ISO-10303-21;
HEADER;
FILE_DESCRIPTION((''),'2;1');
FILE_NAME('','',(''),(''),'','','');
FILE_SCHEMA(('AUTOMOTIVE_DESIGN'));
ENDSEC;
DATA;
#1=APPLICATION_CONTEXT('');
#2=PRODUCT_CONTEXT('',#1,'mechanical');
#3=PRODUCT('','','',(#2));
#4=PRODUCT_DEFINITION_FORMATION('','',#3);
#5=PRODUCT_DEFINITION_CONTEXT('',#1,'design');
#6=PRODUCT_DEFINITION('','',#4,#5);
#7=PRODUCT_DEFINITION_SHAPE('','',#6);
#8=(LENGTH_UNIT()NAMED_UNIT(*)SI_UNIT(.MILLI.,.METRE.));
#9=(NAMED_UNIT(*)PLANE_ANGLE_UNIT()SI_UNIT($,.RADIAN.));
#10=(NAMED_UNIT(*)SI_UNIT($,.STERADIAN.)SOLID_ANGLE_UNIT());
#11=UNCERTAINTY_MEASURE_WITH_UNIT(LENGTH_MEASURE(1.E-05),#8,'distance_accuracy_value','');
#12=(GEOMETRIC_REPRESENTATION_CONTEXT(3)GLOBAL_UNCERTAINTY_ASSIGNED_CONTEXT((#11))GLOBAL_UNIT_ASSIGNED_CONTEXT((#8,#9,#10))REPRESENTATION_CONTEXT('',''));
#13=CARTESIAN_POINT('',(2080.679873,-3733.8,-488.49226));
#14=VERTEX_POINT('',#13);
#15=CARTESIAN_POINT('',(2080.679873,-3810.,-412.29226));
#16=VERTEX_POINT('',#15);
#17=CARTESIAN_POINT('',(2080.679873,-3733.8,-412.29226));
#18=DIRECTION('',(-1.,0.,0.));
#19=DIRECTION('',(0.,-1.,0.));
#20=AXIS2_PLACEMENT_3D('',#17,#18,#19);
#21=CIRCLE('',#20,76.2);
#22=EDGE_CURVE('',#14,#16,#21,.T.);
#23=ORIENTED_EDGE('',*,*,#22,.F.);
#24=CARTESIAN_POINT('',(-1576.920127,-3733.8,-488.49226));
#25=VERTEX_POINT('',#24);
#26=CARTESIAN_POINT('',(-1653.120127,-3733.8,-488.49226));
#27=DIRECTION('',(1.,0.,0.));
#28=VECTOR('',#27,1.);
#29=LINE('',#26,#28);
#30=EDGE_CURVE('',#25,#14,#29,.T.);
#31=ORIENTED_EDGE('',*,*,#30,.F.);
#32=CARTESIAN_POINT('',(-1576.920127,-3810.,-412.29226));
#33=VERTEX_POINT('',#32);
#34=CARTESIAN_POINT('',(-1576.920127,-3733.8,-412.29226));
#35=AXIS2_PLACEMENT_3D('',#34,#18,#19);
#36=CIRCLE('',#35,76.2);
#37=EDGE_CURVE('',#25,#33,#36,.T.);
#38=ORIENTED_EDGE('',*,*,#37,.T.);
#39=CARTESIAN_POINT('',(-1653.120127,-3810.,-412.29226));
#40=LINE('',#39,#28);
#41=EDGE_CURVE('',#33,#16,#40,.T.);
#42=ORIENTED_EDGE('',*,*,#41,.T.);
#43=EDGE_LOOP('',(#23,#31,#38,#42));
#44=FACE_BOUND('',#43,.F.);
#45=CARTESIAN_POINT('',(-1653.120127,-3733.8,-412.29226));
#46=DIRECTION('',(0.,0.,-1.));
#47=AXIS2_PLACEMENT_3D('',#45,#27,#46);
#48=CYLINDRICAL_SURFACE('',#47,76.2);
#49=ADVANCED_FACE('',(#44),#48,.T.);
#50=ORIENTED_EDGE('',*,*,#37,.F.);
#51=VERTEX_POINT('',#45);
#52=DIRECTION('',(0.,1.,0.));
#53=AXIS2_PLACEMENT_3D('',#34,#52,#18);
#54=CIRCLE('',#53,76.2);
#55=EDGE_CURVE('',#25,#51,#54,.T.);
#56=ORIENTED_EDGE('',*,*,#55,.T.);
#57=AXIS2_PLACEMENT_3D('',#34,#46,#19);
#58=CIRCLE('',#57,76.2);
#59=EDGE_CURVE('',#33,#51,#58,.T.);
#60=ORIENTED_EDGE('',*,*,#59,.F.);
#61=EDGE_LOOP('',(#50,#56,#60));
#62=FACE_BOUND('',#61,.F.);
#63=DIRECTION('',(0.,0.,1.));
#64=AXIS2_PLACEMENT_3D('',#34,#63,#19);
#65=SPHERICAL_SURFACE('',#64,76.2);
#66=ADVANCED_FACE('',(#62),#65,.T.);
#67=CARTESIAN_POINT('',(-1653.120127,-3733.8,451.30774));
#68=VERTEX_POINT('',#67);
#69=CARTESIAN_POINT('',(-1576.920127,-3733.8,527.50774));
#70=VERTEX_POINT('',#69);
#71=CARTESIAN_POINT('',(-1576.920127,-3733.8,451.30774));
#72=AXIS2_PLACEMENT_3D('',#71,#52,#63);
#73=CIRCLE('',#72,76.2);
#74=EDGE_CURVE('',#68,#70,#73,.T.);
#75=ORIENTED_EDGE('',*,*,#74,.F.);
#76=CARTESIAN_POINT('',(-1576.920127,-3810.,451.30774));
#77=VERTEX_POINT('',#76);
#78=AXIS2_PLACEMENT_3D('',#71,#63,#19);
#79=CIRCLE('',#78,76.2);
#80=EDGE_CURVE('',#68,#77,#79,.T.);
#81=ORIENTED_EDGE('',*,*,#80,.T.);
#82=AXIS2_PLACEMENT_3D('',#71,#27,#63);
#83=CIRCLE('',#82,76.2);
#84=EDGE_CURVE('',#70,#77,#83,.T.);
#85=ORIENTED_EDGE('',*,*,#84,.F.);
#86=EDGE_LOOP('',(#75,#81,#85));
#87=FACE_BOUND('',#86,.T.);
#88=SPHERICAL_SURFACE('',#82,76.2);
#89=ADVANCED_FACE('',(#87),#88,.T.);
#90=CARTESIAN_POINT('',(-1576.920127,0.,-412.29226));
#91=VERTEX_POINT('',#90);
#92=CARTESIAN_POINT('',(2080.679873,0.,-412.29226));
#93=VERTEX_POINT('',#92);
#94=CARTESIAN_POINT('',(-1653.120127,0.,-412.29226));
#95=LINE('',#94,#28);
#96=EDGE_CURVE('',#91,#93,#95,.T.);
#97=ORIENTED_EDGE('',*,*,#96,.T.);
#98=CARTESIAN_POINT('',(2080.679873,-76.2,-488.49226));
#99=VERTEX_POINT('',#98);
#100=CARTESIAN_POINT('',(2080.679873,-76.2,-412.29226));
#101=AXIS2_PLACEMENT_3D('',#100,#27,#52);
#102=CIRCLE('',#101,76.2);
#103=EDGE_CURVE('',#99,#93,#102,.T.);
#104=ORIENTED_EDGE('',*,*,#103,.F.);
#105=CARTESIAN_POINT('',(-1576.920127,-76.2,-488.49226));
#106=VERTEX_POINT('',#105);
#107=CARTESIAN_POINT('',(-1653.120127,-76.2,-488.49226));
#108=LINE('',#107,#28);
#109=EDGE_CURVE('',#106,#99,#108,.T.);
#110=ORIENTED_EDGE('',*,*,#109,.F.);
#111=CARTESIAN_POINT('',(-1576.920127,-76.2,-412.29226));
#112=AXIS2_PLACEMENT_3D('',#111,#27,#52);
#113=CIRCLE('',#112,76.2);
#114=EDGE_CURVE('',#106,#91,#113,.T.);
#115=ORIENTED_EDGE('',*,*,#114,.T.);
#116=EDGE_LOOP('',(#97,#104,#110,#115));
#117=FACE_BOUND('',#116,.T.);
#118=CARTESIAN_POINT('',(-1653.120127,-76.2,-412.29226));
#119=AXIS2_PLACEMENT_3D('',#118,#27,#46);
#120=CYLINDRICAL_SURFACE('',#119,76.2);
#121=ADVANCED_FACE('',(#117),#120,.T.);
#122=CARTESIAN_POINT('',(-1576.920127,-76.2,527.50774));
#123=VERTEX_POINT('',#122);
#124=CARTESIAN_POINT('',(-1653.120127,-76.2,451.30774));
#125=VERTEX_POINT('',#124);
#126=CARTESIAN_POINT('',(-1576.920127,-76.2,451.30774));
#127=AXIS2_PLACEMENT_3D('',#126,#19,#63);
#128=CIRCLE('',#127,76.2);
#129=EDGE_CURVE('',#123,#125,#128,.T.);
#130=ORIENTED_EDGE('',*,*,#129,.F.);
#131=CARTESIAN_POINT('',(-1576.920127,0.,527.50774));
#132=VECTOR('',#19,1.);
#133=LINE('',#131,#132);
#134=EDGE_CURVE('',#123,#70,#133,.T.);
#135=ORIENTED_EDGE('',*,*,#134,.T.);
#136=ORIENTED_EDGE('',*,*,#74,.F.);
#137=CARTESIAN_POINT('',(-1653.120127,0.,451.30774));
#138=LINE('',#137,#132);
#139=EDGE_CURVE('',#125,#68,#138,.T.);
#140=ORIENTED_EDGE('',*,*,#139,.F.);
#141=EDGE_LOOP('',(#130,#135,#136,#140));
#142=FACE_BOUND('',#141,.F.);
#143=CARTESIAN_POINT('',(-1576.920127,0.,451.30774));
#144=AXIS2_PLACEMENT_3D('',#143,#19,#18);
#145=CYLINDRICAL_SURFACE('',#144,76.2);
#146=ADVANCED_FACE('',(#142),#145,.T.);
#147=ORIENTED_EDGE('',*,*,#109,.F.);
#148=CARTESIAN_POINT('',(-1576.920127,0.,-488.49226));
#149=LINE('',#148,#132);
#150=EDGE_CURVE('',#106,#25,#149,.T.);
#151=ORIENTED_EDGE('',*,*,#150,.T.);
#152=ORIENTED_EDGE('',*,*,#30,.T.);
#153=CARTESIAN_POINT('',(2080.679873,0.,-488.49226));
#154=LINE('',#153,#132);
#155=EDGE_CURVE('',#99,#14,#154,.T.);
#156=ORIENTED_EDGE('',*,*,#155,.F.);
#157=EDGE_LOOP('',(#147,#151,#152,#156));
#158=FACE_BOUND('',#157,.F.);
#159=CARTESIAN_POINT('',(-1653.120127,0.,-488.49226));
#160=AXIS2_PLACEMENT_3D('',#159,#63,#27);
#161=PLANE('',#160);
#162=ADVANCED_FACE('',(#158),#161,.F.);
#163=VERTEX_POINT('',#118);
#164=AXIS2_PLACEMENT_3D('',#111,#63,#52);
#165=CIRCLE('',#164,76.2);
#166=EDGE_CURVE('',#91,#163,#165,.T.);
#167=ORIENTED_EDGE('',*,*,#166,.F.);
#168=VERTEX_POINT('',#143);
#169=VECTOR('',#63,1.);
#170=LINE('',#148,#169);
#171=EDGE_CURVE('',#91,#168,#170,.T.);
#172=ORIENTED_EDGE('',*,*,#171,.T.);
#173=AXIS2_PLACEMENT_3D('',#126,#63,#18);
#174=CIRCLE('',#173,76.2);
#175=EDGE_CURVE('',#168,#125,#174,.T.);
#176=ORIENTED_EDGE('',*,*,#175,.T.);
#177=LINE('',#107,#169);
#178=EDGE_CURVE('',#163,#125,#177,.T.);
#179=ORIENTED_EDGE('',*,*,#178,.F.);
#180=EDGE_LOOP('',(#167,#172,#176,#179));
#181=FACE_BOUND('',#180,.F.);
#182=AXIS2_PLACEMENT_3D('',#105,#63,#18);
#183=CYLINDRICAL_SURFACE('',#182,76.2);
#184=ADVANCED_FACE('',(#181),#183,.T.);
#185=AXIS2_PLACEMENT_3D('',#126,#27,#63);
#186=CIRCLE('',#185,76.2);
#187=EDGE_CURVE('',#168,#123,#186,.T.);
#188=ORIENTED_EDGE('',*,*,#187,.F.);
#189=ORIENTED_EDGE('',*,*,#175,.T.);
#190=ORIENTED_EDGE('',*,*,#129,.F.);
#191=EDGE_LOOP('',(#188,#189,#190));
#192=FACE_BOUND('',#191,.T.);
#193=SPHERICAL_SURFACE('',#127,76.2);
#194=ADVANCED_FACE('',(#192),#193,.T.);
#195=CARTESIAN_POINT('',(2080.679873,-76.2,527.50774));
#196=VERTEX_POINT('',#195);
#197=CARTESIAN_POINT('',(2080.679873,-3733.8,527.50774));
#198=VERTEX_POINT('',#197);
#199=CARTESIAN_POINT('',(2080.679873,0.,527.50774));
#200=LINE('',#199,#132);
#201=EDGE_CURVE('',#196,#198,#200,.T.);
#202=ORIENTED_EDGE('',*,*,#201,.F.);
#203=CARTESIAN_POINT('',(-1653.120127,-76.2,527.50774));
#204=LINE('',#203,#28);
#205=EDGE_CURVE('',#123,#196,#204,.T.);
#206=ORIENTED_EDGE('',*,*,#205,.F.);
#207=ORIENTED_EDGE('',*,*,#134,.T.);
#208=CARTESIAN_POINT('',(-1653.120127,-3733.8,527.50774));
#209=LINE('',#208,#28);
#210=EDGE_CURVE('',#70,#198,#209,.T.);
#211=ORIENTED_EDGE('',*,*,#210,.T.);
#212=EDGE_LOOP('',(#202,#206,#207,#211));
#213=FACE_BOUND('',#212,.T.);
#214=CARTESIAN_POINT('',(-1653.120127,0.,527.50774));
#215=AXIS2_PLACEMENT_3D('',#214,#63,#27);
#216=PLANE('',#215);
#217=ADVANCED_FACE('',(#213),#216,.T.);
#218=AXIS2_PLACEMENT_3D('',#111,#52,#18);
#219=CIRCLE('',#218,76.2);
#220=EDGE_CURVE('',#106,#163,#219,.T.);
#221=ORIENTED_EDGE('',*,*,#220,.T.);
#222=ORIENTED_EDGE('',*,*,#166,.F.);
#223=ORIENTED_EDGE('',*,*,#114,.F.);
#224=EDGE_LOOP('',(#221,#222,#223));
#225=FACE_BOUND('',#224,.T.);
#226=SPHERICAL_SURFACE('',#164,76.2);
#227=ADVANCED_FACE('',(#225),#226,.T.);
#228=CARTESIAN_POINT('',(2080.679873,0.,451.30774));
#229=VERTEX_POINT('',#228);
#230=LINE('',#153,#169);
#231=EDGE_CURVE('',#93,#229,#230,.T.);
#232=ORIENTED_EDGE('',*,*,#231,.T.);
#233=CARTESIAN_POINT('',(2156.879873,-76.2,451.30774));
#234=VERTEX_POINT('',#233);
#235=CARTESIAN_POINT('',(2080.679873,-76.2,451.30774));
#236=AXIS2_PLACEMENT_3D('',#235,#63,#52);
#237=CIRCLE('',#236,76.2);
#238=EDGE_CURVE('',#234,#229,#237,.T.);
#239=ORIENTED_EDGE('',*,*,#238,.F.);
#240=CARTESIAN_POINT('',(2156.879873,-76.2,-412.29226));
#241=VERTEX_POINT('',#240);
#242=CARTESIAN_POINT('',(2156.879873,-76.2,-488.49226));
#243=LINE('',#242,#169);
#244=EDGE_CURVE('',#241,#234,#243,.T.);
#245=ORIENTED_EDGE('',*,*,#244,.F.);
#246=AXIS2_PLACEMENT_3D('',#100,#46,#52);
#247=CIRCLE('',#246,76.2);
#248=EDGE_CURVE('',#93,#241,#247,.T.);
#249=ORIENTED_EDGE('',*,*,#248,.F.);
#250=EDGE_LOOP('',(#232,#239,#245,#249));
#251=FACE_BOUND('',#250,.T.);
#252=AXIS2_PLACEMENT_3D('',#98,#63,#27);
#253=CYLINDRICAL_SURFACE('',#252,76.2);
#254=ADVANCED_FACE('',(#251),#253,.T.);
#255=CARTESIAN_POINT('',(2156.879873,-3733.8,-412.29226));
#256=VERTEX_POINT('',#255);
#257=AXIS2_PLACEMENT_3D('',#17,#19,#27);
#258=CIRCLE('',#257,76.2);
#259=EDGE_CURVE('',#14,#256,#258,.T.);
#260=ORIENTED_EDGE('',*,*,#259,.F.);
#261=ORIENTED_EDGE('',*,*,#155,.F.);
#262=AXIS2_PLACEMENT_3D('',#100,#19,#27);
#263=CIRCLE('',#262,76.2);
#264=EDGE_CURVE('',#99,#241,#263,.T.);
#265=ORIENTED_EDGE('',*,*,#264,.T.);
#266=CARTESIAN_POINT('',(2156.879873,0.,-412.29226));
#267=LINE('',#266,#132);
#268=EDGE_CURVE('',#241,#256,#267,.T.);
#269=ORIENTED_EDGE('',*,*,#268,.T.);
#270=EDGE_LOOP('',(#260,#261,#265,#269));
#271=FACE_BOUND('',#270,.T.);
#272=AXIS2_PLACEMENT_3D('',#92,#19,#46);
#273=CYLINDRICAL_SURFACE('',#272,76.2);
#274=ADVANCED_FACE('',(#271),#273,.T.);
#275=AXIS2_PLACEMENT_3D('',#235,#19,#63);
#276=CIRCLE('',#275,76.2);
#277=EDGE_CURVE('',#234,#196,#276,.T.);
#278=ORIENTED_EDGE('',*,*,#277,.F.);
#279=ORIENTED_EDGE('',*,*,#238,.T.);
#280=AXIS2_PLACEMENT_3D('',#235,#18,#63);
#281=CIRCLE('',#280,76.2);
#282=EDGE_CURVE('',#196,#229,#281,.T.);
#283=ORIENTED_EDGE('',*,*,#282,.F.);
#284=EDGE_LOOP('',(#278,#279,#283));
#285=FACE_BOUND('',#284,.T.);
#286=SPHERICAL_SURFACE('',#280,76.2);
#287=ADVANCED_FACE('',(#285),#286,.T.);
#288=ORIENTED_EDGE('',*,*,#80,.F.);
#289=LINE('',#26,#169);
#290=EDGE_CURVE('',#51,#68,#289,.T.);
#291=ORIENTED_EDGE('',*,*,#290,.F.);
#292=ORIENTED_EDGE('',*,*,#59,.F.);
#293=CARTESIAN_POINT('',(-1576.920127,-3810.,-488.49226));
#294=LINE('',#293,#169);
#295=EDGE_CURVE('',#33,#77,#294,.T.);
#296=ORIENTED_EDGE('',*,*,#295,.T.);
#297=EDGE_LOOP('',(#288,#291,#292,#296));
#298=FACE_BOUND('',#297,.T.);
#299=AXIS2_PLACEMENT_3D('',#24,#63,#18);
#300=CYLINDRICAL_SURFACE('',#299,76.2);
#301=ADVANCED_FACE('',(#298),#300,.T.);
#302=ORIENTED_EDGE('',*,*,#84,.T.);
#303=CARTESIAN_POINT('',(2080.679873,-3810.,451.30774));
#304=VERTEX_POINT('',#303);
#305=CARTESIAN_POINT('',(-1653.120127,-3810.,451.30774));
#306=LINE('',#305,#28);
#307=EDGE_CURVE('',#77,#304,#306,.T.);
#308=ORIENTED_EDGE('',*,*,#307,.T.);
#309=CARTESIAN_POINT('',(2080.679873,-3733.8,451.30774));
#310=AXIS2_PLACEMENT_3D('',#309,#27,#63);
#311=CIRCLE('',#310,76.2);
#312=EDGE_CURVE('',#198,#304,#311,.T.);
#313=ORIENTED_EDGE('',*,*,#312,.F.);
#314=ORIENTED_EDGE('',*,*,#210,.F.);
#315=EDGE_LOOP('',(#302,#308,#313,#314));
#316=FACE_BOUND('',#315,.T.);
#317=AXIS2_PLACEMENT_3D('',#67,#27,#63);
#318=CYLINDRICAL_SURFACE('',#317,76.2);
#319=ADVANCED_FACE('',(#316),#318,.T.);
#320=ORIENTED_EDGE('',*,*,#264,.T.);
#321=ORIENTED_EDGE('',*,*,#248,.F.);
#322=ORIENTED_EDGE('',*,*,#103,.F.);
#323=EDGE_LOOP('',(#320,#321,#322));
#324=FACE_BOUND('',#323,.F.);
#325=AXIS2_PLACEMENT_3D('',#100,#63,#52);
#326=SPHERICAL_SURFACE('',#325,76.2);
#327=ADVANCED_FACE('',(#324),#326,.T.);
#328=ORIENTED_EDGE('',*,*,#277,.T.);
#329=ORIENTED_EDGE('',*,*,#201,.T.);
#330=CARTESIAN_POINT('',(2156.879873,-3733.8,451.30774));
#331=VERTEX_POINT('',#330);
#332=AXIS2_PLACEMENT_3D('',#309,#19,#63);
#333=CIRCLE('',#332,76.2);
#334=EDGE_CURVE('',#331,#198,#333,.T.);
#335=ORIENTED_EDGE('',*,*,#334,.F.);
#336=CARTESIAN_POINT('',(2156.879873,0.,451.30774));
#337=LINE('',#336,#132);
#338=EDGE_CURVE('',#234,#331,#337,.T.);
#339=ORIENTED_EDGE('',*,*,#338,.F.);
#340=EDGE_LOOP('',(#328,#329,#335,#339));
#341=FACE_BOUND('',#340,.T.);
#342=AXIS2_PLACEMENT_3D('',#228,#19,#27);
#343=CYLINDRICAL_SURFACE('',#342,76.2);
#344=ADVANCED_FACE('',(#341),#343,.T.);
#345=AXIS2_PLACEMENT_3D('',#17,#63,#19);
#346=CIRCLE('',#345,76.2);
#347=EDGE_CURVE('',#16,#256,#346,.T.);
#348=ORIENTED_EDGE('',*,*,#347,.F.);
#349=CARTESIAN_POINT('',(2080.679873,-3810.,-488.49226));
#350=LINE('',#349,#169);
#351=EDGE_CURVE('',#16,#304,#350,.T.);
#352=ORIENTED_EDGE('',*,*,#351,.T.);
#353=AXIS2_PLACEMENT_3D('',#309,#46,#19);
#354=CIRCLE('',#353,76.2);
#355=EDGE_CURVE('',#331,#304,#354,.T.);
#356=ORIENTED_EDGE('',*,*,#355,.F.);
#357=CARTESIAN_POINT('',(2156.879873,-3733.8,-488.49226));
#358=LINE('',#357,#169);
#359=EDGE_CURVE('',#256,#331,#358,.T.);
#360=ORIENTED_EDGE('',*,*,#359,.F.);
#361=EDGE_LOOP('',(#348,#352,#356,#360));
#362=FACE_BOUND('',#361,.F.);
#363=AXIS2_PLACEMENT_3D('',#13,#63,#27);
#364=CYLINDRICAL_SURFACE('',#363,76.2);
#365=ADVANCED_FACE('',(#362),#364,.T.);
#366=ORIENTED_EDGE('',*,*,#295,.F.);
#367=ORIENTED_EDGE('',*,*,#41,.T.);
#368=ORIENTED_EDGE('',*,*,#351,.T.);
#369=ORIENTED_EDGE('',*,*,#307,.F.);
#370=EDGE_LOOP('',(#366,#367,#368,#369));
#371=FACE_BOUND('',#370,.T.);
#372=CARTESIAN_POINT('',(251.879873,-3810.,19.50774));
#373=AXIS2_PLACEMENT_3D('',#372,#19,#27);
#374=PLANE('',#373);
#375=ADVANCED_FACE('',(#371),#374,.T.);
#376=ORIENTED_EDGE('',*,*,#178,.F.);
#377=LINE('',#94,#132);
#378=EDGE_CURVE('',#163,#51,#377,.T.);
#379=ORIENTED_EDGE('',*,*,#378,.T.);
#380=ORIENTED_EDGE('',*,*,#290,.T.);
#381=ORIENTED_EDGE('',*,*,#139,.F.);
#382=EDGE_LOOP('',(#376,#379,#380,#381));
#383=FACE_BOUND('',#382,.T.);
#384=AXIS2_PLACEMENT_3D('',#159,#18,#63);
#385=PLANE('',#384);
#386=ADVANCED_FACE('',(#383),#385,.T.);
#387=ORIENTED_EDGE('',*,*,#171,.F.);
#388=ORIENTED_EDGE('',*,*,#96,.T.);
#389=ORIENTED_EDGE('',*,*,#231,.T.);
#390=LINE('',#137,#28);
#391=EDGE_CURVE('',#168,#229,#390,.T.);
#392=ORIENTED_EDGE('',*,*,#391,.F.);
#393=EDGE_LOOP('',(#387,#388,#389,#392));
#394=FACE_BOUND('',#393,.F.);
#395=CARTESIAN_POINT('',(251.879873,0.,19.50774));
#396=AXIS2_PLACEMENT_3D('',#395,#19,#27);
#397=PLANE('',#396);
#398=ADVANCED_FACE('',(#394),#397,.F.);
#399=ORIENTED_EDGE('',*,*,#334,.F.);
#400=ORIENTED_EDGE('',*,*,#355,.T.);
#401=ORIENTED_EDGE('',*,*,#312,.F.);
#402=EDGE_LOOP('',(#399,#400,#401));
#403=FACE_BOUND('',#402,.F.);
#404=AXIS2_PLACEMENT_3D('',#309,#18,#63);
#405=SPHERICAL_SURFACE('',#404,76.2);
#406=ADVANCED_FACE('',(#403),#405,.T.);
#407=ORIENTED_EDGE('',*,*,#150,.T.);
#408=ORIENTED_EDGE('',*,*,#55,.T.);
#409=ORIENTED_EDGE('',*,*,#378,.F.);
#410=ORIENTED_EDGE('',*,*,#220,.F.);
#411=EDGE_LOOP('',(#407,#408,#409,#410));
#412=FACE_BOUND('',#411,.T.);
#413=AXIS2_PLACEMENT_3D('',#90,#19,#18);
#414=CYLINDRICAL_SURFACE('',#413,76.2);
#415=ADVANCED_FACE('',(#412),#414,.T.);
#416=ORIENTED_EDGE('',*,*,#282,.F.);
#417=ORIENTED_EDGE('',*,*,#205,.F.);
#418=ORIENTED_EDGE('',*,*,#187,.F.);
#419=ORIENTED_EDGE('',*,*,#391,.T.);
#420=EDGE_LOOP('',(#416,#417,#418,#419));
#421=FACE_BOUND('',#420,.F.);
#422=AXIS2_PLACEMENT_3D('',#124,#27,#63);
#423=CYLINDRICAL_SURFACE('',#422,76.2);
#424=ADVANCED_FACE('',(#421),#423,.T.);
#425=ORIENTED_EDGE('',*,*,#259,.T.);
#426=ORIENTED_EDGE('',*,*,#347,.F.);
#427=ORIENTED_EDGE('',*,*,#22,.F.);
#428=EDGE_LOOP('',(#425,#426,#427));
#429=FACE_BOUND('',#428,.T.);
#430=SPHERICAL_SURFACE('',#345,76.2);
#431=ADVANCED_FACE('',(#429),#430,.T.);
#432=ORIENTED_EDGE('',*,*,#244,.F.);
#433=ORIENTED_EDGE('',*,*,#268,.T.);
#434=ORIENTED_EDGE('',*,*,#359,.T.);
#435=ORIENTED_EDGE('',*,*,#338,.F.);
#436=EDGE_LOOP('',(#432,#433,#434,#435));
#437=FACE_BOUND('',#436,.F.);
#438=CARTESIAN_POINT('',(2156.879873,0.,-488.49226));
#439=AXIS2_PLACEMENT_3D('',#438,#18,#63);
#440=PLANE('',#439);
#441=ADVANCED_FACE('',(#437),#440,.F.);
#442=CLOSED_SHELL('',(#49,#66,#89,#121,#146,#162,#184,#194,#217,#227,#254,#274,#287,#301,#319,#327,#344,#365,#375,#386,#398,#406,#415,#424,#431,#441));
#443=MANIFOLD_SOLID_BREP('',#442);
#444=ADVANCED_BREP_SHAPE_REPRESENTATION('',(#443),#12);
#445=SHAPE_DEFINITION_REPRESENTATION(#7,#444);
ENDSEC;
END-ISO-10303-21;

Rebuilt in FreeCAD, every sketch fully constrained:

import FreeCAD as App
import Part
import Sketcher

V = App.Vector
Q = App.Units.Quantity

doc = App.newDocument("Part")
body = doc.addObject("PartDesign::Body", "Body")

sketch1 = doc.addObject("Sketcher::SketchObject", "Sketch")
body.addObject(sketch1)
sketch1.AttachmentSupport = (doc.XZ_Plane, [""])
sketch1.MapMode = "FlatFace"
sketch1.addGeometry([
    Part.LineSegment(V(-1653, 528, 0), V(-1653, -488, 0)),
    Part.LineSegment(V(-1653, -488, 0), V(2157, -488, 0)),
    Part.LineSegment(V(2157, -488, 0), V(2157, 528, 0)),
    Part.LineSegment(V(2157, 528, 0), V(-1653, 528, 0)),
], False)
sketch1.addConstraint([
    Sketcher.Constraint("Coincident", 0, 2, 1, 1),
    Sketcher.Constraint("Coincident", 1, 2, 2, 1),
    Sketcher.Constraint("Coincident", 2, 2, 3, 1),
    Sketcher.Constraint("Coincident", 3, 2, 0, 1),
    Sketcher.Constraint("Vertical", 0),
    Sketcher.Constraint("Horizontal", 1),
    Sketcher.Constraint("Vertical", 2),
    Sketcher.Constraint("Horizontal", 3),
    Sketcher.Constraint("DistanceX", 1, 1, 1, 2, Q("150 in")),
    Sketcher.Constraint("DistanceY", 0, 2, 0, 1, Q("40 in")),
    Sketcher.Constraint("DistanceY", 0, 2, -1, 1, Q("488.49226 mm")),
    Sketcher.Constraint("DistanceX", 0, 2, -1, 1, Q("1653.120127 mm")),
])
pad1 = doc.addObject("PartDesign::Pad", "Pad")
body.addObject(pad1)
pad1.Profile = sketch1
pad1.Length = Q("150 in")
doc.recompute()

fillet = doc.addObject("PartDesign::Fillet", "Fillet")
body.addObject(fillet)
fillet.Base = (pad1, ["Edge1"])
fillet.UseAllEdges = True
fillet.Radius = Q("3 in")

doc.recompute()
